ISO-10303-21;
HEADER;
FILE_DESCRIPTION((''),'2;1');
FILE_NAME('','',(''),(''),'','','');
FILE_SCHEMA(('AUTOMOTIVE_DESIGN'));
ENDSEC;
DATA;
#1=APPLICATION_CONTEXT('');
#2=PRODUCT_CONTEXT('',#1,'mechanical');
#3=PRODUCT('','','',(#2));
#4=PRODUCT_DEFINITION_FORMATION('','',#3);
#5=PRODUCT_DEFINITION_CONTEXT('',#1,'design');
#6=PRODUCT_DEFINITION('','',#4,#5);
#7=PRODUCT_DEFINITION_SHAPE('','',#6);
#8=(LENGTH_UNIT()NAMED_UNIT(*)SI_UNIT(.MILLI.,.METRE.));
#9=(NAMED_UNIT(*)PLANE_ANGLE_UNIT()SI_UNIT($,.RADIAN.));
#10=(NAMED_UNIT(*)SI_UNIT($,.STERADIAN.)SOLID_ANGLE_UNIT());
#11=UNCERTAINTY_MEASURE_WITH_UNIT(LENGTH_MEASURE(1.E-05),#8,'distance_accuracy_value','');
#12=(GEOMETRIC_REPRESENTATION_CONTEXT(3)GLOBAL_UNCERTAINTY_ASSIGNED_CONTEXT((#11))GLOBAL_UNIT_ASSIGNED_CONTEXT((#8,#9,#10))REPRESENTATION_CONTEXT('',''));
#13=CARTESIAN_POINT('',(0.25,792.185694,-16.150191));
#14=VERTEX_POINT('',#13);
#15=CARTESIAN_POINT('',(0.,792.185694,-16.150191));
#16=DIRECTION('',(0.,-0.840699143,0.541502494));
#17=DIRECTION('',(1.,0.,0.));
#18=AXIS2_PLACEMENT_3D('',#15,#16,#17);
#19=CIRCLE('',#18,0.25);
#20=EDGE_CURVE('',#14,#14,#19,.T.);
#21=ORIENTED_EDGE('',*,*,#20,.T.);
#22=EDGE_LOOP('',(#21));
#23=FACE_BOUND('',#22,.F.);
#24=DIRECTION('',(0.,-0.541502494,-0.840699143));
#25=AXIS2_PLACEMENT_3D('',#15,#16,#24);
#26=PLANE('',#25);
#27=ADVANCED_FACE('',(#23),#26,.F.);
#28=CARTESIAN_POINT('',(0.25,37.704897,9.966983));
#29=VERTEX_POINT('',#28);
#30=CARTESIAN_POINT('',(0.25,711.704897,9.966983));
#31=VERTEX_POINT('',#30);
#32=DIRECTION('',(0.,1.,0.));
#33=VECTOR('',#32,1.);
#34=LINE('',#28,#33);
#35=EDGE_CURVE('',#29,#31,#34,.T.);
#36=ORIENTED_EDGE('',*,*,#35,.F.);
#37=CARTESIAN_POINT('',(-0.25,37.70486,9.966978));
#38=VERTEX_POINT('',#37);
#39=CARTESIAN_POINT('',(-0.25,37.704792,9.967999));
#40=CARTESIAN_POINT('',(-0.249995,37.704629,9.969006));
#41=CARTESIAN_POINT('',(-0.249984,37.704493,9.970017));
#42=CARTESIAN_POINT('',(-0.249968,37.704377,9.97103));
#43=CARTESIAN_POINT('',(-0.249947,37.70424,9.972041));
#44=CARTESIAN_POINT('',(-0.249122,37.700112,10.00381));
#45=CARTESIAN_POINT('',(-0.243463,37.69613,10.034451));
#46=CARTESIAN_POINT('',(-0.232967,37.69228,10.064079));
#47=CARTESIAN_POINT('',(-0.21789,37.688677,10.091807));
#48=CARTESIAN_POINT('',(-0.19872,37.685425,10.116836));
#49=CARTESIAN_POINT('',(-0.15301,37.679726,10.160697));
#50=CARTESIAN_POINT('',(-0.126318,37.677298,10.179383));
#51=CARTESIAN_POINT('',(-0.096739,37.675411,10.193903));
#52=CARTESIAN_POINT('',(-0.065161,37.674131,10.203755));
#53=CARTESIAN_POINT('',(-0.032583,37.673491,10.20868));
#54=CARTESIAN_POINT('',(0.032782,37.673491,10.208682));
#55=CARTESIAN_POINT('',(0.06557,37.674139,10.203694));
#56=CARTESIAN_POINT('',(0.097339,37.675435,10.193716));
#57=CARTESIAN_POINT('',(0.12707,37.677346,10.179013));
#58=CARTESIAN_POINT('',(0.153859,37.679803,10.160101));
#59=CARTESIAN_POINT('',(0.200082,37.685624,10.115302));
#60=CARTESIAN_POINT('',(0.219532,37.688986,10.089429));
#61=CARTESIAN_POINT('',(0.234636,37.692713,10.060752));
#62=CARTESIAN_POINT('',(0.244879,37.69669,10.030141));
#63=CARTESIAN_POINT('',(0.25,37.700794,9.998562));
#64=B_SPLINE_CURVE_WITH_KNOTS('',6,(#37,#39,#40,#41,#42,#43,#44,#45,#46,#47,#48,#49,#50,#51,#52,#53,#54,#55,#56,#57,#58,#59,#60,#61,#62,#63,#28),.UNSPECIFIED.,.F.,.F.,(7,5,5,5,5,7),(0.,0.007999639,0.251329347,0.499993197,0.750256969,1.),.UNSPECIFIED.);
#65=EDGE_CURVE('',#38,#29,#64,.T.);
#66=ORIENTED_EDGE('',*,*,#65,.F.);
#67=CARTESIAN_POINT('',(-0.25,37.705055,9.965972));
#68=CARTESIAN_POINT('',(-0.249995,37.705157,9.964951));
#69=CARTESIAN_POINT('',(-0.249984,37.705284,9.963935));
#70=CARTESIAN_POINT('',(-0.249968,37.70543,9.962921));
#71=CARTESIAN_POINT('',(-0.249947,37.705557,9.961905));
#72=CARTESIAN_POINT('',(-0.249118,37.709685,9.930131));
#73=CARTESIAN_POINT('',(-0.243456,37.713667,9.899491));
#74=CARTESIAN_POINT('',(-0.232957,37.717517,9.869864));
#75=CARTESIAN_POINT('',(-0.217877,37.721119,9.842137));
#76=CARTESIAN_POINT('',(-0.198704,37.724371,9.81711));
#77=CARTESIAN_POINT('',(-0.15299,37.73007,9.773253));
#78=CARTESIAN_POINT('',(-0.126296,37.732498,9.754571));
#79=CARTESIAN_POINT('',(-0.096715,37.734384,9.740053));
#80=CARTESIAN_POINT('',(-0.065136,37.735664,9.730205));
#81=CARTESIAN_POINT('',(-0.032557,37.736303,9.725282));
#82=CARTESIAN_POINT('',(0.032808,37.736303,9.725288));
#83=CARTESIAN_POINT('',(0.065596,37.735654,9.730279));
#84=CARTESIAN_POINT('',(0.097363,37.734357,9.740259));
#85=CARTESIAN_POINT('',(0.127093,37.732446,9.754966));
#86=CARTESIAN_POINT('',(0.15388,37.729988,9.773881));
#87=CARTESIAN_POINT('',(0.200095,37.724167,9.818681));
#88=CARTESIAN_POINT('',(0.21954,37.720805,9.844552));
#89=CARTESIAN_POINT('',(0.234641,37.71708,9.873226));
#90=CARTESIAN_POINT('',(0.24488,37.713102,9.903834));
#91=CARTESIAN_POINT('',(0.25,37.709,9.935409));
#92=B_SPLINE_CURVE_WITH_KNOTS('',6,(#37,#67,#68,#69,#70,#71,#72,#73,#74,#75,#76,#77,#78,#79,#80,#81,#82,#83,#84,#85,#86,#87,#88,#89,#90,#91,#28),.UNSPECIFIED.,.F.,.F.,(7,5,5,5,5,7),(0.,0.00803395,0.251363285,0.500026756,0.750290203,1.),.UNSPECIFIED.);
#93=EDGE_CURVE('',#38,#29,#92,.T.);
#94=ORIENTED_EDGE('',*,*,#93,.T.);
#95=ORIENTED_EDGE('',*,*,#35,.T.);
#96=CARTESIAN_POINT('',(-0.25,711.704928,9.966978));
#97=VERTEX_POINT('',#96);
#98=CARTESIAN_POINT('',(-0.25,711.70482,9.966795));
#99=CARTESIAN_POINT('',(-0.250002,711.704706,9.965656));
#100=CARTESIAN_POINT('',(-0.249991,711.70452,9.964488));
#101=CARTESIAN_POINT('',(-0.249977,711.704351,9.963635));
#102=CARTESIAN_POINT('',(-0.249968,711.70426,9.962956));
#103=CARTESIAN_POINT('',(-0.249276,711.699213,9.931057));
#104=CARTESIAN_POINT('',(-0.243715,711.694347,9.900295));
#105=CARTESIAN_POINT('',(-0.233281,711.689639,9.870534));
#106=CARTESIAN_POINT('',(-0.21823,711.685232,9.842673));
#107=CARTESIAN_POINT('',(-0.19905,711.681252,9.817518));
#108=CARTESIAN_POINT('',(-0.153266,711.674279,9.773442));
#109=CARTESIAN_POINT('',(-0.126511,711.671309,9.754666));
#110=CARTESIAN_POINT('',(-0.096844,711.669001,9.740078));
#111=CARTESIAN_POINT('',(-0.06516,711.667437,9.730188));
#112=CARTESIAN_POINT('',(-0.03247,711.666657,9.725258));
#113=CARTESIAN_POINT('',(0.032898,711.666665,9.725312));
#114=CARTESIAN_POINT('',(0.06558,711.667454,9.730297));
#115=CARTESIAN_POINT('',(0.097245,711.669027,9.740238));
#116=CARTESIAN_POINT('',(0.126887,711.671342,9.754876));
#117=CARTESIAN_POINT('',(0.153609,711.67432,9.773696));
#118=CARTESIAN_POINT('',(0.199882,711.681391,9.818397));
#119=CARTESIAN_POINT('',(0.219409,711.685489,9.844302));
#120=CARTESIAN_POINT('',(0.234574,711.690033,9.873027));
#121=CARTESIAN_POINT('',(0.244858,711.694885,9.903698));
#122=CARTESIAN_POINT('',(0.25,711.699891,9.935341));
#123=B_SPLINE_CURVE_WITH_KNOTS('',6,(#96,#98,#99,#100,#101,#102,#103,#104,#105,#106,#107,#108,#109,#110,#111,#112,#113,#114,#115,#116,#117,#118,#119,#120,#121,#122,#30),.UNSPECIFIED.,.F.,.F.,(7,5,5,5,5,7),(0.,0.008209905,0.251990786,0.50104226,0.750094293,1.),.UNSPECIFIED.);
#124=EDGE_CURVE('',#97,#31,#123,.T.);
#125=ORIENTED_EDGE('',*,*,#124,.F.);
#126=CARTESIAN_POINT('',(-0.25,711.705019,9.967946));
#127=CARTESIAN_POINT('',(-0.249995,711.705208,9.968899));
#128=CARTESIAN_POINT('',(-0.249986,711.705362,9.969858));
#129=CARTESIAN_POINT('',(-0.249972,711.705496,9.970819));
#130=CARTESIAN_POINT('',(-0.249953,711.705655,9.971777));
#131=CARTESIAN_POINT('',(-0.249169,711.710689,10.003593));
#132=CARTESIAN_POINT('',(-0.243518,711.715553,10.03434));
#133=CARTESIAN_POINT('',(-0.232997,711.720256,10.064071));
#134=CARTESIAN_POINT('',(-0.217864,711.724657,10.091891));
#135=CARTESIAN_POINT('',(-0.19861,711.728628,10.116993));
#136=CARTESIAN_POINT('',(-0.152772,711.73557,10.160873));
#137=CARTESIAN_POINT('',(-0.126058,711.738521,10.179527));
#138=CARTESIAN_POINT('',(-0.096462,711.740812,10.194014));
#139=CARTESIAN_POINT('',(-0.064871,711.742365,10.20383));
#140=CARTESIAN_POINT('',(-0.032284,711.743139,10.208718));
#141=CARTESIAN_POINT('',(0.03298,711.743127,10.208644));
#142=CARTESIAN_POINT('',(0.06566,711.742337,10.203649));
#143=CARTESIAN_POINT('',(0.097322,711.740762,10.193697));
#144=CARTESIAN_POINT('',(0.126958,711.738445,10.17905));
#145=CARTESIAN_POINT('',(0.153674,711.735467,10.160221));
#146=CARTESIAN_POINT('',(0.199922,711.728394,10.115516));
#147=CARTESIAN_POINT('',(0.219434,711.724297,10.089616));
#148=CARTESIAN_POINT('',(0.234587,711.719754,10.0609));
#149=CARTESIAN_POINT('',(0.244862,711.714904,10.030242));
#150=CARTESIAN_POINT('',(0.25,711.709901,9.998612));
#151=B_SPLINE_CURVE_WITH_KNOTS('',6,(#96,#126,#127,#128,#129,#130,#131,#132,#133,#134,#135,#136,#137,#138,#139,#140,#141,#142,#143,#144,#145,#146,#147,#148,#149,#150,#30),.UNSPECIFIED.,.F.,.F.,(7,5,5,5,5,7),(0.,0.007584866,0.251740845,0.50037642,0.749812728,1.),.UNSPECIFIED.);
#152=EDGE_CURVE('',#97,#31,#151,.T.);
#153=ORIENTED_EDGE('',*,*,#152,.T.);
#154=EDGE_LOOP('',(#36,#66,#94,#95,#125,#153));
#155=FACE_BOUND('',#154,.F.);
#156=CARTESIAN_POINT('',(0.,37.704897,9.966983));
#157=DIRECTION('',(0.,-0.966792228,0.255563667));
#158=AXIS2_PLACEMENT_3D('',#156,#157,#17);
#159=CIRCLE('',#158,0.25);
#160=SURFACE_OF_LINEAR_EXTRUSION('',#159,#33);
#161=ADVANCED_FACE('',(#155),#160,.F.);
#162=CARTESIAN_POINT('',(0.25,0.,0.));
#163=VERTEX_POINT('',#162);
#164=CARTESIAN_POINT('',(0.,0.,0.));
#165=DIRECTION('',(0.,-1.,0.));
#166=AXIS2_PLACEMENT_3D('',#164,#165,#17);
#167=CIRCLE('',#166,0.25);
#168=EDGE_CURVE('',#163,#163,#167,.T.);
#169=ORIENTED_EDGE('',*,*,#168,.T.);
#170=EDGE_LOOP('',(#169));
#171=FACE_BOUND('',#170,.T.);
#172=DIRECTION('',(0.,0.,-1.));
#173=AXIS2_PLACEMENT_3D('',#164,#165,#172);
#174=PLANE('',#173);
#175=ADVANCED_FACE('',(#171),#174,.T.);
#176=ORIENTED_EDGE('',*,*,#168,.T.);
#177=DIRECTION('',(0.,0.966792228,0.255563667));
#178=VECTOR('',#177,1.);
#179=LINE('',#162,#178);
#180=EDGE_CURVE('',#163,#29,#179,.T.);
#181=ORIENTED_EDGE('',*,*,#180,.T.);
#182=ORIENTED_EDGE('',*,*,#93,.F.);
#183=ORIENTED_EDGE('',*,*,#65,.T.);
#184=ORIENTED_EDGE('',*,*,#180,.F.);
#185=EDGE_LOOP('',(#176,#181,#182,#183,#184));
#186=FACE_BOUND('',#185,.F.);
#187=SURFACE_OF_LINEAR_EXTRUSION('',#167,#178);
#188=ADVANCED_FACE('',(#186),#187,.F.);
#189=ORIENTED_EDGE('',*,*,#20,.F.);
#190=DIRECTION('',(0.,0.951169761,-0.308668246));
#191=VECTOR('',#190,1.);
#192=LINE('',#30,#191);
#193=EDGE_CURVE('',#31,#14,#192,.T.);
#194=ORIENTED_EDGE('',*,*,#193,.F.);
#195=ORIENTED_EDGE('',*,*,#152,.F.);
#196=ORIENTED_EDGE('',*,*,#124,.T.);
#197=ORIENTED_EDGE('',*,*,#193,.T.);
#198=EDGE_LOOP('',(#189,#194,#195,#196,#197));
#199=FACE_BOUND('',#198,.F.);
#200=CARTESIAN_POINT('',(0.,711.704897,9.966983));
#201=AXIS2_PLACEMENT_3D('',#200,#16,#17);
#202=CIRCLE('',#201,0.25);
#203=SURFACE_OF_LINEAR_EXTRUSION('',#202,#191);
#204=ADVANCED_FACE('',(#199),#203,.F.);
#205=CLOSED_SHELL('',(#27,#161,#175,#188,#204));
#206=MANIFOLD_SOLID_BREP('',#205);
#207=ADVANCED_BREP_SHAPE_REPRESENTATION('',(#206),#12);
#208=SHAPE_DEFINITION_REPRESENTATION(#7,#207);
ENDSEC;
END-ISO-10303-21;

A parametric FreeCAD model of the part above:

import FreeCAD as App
import Part
import Sketcher
Q = App.Units.Quantity

doc = App.newDocument("Part")
body = doc.addObject("PartDesign::Body", "Body")

sketch1 = body.newObject("Sketcher::SketchObject", "Sketch")
sketch1.AttachmentSupport = (doc.getObject("XZ_Plane"), [""])
sketch1.MapMode = "FlatFace"
sketch1.addGeometry(Part.Circle(App.Vector(0, 0, 0), App.Vector(0, 0, 1), 0.25), False)
sketch1.addConstraint(Sketcher.Constraint("Coincident", 0, 3, -1, 1))
sketch1.addConstraint(Sketcher.Constraint("Diameter", 0, Q("0.5 mm")))

sketch2 = body.newObject("Sketcher::SketchObject", "Sketch001")
sketch2.AttachmentSupport = (doc.getObject("YZ_Plane"), [""])
sketch2.MapMode = "FlatFace"
sketch2.addGeometry(Part.LineSegment(App.Vector(0, 0, 0), App.Vector(37.704897, 9.966983, 0)), False)
sketch2.addGeometry(Part.LineSegment(App.Vector(37.704897, 9.966983, 0), App.Vector(711.704897, 9.966983, 0)), False)
sketch2.addGeometry(Part.LineSegment(App.Vector(711.704897, 9.966983, 0), App.Vector(792.185694, -16.150191, 0)), False)
sketch2.addConstraint(Sketcher.Constraint("Coincident", 0, 2, 1, 1))
sketch2.addConstraint(Sketcher.Constraint("Coincident", 1, 2, 2, 1))
sketch2.addConstraint(Sketcher.Constraint("Horizontal", 1))
sketch2.addConstraint(Sketcher.Constraint("Coincident", 0, 1, -1, 1))
sketch2.addConstraint(Sketcher.Constraint("DistanceX", 1, 1, 1, 2, Q("674 mm")))
sketch2.addConstraint(Sketcher.Constraint("Distance", 0, Q("39 mm")))
sketch2.addConstraint(Sketcher.Constraint("DistanceY", 2, 2, -1, 1, Q("16.150191 mm")))
sketch2.addConstraint(Sketcher.Constraint("Distance", 2, Q("84.612443 mm")))
sketch2.addConstraint(Sketcher.Constraint("DistanceX", -1, 1, 0, 2, Q("37.704897 mm")))
doc.recompute()

additivepipe = body.newObject("PartDesign::AdditivePipe", "AdditivePipe")
additivepipe.Profile = sketch1
additivepipe.Spine = (sketch2, ["Edge1", "Edge2", "Edge3"])
additivepipe.Transition = "Right corner"

doc.recompute()
